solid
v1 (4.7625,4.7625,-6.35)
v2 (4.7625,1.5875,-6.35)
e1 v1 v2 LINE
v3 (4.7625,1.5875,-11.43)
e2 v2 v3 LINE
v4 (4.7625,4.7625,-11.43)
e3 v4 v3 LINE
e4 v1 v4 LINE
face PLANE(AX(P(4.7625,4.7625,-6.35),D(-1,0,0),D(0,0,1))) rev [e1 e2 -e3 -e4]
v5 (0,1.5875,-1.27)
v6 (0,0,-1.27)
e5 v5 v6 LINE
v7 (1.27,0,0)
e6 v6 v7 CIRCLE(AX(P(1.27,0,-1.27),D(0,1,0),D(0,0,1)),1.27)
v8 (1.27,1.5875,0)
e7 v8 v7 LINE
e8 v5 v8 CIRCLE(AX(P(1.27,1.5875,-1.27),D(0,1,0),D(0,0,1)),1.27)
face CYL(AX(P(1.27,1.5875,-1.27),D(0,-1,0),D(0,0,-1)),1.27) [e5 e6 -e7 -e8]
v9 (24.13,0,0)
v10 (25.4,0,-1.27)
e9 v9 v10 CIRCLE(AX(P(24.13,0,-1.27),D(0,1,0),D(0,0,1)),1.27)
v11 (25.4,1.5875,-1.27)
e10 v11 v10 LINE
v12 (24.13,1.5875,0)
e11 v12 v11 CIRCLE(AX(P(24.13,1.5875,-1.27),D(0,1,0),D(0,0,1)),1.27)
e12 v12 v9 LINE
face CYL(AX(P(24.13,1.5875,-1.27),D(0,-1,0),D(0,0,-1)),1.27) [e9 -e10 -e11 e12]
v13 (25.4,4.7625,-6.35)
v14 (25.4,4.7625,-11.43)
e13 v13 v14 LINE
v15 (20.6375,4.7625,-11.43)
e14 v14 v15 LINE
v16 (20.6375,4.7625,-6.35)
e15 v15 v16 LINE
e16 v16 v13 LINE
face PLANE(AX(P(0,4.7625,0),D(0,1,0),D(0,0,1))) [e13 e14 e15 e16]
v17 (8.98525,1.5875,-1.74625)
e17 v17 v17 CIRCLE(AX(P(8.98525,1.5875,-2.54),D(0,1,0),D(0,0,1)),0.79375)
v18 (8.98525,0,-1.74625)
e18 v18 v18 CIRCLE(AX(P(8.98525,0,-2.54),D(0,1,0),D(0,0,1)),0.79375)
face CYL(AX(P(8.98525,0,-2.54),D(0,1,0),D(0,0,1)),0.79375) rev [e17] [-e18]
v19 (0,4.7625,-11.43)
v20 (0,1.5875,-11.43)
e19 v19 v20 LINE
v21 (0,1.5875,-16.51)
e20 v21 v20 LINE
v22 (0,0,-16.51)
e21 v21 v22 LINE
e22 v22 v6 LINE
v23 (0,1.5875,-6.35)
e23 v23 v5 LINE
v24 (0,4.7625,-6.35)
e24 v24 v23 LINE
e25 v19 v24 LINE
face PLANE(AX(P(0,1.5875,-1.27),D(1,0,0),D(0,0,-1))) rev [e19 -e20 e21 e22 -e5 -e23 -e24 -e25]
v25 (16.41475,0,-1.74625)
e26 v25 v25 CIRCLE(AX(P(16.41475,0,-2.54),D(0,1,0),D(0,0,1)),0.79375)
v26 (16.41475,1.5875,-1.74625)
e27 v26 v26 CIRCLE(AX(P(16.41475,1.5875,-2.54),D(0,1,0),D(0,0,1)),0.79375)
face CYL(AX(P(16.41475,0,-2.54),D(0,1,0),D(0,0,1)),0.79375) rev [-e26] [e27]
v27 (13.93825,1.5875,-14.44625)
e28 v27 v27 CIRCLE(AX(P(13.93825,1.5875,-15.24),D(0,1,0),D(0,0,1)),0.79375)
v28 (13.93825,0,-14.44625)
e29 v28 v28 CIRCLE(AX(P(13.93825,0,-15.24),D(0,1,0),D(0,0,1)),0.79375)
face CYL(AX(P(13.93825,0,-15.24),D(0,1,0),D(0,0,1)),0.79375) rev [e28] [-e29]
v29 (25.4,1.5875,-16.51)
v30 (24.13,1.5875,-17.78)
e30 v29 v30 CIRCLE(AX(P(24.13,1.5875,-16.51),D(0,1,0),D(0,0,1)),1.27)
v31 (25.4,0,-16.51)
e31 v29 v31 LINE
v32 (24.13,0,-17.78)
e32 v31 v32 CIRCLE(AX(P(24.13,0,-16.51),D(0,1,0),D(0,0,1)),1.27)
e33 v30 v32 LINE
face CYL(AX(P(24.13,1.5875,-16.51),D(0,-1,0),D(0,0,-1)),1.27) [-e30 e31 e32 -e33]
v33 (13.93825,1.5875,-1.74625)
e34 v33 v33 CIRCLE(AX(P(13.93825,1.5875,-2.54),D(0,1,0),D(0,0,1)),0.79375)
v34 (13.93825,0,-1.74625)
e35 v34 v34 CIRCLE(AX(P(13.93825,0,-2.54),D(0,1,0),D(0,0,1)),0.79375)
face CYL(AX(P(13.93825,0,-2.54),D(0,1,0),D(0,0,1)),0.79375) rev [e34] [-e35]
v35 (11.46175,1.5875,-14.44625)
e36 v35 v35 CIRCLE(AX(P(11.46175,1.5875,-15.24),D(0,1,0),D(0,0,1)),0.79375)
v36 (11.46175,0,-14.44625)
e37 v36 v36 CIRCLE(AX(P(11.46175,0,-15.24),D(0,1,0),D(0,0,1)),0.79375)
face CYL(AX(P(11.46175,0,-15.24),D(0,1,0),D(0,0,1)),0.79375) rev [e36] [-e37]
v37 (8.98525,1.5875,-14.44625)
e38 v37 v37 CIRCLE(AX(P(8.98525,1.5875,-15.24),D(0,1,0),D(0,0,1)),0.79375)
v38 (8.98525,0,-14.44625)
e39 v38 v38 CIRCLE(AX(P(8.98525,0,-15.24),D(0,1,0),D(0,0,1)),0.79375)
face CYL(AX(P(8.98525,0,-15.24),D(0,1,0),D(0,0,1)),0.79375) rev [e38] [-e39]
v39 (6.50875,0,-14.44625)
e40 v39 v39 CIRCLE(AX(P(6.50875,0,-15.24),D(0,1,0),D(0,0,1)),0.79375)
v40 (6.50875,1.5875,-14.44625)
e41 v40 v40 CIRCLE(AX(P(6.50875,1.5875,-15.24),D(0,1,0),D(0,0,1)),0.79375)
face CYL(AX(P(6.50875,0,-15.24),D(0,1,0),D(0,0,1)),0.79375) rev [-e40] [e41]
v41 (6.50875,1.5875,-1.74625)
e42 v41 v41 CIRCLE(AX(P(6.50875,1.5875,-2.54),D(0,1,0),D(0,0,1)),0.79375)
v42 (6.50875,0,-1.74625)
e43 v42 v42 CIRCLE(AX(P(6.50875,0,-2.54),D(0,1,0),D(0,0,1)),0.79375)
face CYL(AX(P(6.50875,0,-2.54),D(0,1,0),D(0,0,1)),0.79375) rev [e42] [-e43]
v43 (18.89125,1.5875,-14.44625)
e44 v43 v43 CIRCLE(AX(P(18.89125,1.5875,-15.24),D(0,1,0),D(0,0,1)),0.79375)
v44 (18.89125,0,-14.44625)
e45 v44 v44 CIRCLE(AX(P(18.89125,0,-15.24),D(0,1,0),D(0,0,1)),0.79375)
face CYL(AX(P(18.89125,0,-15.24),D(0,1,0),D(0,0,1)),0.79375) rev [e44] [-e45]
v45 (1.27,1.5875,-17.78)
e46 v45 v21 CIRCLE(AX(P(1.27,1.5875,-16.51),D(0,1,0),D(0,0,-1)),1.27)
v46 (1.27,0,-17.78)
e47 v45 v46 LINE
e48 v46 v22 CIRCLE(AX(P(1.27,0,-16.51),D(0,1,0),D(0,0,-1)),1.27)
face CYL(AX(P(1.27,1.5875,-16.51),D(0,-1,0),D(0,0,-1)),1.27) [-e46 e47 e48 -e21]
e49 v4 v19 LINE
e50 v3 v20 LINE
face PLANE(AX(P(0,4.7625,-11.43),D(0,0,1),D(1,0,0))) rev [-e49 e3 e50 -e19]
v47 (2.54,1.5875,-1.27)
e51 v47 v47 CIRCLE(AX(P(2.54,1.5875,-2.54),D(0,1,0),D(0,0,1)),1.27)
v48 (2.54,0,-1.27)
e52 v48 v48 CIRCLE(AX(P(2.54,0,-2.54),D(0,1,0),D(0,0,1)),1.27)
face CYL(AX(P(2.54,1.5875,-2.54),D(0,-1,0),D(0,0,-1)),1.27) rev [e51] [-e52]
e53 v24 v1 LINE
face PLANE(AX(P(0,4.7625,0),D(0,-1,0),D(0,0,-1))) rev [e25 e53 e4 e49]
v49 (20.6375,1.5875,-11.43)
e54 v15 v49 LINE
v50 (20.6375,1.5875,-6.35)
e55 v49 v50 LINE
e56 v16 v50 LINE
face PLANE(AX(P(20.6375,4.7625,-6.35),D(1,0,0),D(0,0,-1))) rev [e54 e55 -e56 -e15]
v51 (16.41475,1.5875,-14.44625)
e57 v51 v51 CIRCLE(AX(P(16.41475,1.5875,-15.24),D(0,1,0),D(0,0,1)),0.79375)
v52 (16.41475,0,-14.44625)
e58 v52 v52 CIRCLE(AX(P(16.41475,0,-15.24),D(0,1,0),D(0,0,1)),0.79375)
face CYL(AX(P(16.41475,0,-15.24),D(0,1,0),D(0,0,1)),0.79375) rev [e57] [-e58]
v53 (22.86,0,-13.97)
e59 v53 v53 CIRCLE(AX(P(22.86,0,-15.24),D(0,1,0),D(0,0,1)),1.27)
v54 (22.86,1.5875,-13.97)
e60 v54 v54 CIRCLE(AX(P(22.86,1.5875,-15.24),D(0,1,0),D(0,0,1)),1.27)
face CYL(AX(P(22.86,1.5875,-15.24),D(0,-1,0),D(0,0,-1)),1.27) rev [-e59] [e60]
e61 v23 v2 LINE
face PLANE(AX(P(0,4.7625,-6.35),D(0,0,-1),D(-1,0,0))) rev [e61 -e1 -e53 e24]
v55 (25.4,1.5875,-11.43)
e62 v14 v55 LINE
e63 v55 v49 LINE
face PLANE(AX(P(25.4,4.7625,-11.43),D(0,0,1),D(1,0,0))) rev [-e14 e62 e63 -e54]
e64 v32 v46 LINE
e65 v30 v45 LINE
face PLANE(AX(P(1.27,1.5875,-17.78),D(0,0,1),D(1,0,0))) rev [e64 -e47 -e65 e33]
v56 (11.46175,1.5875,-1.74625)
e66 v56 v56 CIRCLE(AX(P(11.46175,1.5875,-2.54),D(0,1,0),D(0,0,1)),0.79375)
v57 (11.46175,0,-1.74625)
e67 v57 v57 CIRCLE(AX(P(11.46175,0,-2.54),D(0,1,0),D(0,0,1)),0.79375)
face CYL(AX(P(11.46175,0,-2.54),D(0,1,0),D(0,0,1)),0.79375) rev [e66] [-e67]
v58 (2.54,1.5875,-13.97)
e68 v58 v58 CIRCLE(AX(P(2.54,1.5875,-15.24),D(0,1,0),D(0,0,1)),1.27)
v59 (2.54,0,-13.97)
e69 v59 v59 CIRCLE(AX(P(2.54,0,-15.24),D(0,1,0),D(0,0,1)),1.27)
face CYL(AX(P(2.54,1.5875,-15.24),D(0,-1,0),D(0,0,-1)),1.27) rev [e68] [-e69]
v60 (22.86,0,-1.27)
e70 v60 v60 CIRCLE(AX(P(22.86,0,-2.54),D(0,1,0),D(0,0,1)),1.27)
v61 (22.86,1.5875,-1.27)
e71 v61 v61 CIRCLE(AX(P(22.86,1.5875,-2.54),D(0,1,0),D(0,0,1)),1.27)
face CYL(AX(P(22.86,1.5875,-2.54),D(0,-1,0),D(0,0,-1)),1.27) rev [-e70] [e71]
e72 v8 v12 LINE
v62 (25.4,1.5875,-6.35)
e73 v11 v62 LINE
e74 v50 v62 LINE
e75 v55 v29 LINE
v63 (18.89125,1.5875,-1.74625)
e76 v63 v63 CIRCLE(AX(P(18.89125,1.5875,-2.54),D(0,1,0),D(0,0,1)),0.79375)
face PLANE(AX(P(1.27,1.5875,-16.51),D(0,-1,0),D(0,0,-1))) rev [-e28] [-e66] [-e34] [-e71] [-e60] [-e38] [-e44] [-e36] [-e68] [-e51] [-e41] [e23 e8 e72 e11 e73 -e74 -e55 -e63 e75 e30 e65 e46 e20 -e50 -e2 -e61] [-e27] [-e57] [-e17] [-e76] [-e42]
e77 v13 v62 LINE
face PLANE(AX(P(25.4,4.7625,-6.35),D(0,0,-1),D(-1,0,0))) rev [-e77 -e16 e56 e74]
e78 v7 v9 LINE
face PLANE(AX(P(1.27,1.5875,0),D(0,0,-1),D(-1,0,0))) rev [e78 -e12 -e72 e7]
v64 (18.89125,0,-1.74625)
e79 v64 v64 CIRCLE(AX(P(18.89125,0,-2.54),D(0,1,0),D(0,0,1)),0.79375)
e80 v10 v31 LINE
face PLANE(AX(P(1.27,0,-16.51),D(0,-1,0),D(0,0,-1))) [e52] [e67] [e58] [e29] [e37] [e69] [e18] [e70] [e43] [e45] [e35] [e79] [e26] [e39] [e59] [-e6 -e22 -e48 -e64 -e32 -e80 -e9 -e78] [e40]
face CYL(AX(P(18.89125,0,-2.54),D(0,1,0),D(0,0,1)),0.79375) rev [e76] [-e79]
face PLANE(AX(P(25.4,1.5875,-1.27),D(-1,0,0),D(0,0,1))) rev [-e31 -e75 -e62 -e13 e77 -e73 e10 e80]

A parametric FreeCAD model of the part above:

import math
import FreeCAD as App
import Part
import Sketcher
Q = App.Units.Quantity

doc = App.newDocument("Part")
body = doc.addObject("PartDesign::Body", "Body")

# Sketch on XZ plane
sketch1 = body.newObject("Sketcher::SketchObject", "Sketch")
sketch1.AttachmentSupport = (doc.getObject("XZ_Plane"), [""])
sketch1.MapMode = "FlatFace"
sketch1.addGeometry(Part.LineSegment(App.Vector(1.3, 0, 0), App.Vector(24.1, 0, 0)), False)
sketch1.addGeometry(Part.ArcOfCircle(Part.Circle(App.Vector(24.1, -1.3, 0), App.Vector(0, 0, 1), 1.3), math.radians(0), math.radians(90)), False)
sketch1.addGeometry(Part.LineSegment(App.Vector(25.4, -1.3, 0), App.Vector(25.4, -16.5, 0)), False)
sketch1.addGeometry(Part.ArcOfCircle(Part.Circle(App.Vector(24.1, -16.5, 0), App.Vector(0, 0, 1), 1.3), math.radians(-90), math.radians(0)), False)
sketch1.addGeometry(Part.LineSegment(App.Vector(24.1, -17.8, 0), App.Vector(1.3, -17.8, 0)), False)
sketch1.addGeometry(Part.ArcOfCircle(Part.Circle(App.Vector(1.3, -16.5, 0), App.Vector(0, 0, 1), 1.3), math.radians(180), math.radians(270)), False)
sketch1.addGeometry(Part.LineSegment(App.Vector(0, -16.5, 0), App.Vector(0, -1.3, 0)), False)
sketch1.addGeometry(Part.ArcOfCircle(Part.Circle(App.Vector(1.3, -1.3, 0), App.Vector(0, 0, 1), 1.3), math.radians(90), math.radians(180)), False)
sketch1.addGeometry(Part.Circle(App.Vector(2.5, -2.5, 0), App.Vector(0, 0, 1), 1.3), False)
sketch1.addGeometry(Part.Circle(App.Vector(22.9, -2.5, 0), App.Vector(0, 0, 1), 1.3), False)
sketch1.addGeometry(Part.Circle(App.Vector(2.5, -15.2, 0), App.Vector(0, 0, 1), 1.3), False)
sketch1.addGeometry(Part.Circle(App.Vector(22.9, -15.2, 0), App.Vector(0, 0, 1), 1.3), False)
sketch1.addConstraint(Sketcher.Constraint("Tangent", 0, 2, 1, 2))
sketch1.addConstraint(Sketcher.Constraint("Tangent", 1, 1, 2, 1))
sketch1.addConstraint(Sketcher.Constraint("Tangent", 2, 2, 3, 2))
sketch1.addConstraint(Sketcher.Constraint("Tangent", 3, 1, 4, 1))
sketch1.addConstraint(Sketcher.Constraint("Tangent", 4, 2, 5, 2))
sketch1.addConstraint(Sketcher.Constraint("Tangent", 5, 1, 6, 1))
sketch1.addConstraint(Sketcher.Constraint("Tangent", 6, 2, 7, 2))
sketch1.addConstraint(Sketcher.Constraint("Tangent", 7, 1, 0, 1))
sketch1.addConstraint(Sketcher.Constraint("Horizontal", 0))
sketch1.addConstraint(Sketcher.Constraint("Vertical", 2))
sketch1.addConstraint(Sketcher.Constraint("Horizontal", 4))
sketch1.addConstraint(Sketcher.Constraint("Vertical", 6))
sketch1.addConstraint(Sketcher.Constraint("Equal", 1, 3))
sketch1.addConstraint(Sketcher.Constraint("Equal", 3, 5))
sketch1.addConstraint(Sketcher.Constraint("Equal", 5, 7))
sketch1.addConstraint(Sketcher.Constraint("Equal", 7, 8))
sketch1.addConstraint(Sketcher.Constraint("Equal", 8, 9))
sketch1.addConstraint(Sketcher.Constraint("Equal", 9, 10))
sketch1.addConstraint(Sketcher.Constraint("Equal", 10, 11))
sketch1.addConstraint(Sketcher.Constraint("PointOnObject", 0, 2, -1))
sketch1.addConstraint(Sketcher.Constraint("PointOnObject", 5, 1, -2))
sketch1.addConstraint(Sketcher.Constraint("Horizontal", 8, 3, 9, 3))
sketch1.addConstraint(Sketcher.Constraint("Horizontal", 10, 3, 11, 3))
sketch1.addConstraint(Sketcher.Constraint("Vertical", 8, 3, 10, 3))
sketch1.addConstraint(Sketcher.Constraint("Vertical", 9, 3, 11, 3))
sketch1.addConstraint(Sketcher.Constraint("Diameter", 8, Q("0.1 in")))
sketch1.addConstraint(Sketcher.Constraint("DistanceX", 0, 1, 0, 2, Q("0.9 in")))
sketch1.addConstraint(Sketcher.Constraint("DistanceY", 2, 2, 2, 1, Q("0.6 in")))
sketch1.addConstraint(Sketcher.Constraint("DistanceX", -1, 1, 8, 3, Q("0.1 in")))
sketch1.addConstraint(Sketcher.Constraint("DistanceY", 8, 3, -1, 1, Q("0.1 in")))
sketch1.addConstraint(Sketcher.Constraint("DistanceX", -1, 1, 9, 3, Q("0.9 in")))
sketch1.addConstraint(Sketcher.Constraint("DistanceY", 10, 3, -1, 1, Q("0.6 in")))
pad1 = body.newObject("PartDesign::Pad", "Pad")
pad1.Profile = sketch1
pad1.Length = Q("0.0625 in")
pad1.Reversed = True

# Sketch on XZ plane
sketch2 = body.newObject("Sketcher::SketchObject", "Sketch001")
sketch2.AttachmentSupport = (doc.getObject("XZ_Plane"), [""])
sketch2.MapMode = "FlatFace"
sketch2.AttachmentOffset = App.Placement(App.Vector(0, 0, -0.0625 * 25.4), App.Rotation())
sketch2.addGeometry(Part.Circle(App.Vector(6.5, -15.2, 0), App.Vector(0, 0, 1), 0.8), False)
sketch2.addGeometry(Part.Circle(App.Vector(9, -15.2, 0), App.Vector(0, 0, 1), 0.8), False)
sketch2.addGeometry(Part.Circle(App.Vector(11.5, -15.2, 0), App.Vector(0, 0, 1), 0.8), False)
sketch2.addGeometry(Part.Circle(App.Vector(13.9, -15.2, 0), App.Vector(0, 0, 1), 0.8), False)
sketch2.addGeometry(Part.Circle(App.Vector(16.4, -15.2, 0), App.Vector(0, 0, 1), 0.8), False)
sketch2.addGeometry(Part.Circle(App.Vector(18.9, -15.2, 0), App.Vector(0, 0, 1), 0.8), False)
sketch2.addGeometry(Part.Circle(App.Vector(6.5, -2.5, 0), App.Vector(0, 0, 1), 0.8), False)
sketch2.addGeometry(Part.Circle(App.Vector(9, -2.5, 0), App.Vector(0, 0, 1), 0.8), False)
sketch2.addGeometry(Part.Circle(App.Vector(11.5, -2.5, 0), App.Vector(0, 0, 1), 0.8), False)
sketch2.addGeometry(Part.Circle(App.Vector(13.9, -2.5, 0), App.Vector(0, 0, 1), 0.8), False)
sketch2.addGeometry(Part.Circle(App.Vector(16.4, -2.5, 0), App.Vector(0, 0, 1), 0.8), False)
sketch2.addGeometry(Part.Circle(App.Vector(18.9, -2.5, 0), App.Vector(0, 0, 1), 0.8), False)
sketch2.addConstraint(Sketcher.Constraint("Equal", 0, 1))
sketch2.addConstraint(Sketcher.Constraint("Equal", 1, 2))
sketch2.addConstraint(Sketcher.Constraint("Equal", 2, 3))
sketch2.addConstraint(Sketcher.Constraint("Equal", 3, 4))
sketch2.addConstraint(Sketcher.Constraint("Equal", 4, 5))
sketch2.addConstraint(Sketcher.Constraint("Equal", 5, 6))
sketch2.addConstraint(Sketcher.Constraint("Equal", 6, 7))
sketch2.addConstraint(Sketcher.Constraint("Equal", 7, 8))
sketch2.addConstraint(Sketcher.Constraint("Equal", 8, 9))
sketch2.addConstraint(Sketcher.Constraint("Equal", 9, 10))
sketch2.addConstraint(Sketcher.Constraint("Equal", 10, 11))
sketch2.addConstraint(Sketcher.Constraint("Horizontal", 0, 3, 1, 3))
sketch2.addConstraint(Sketcher.Constraint("Horizontal", 1, 3, 2, 3))
sketch2.addConstraint(Sketcher.Constraint("Horizontal", 2, 3, 3, 3))
sketch2.addConstraint(Sketcher.Constraint("Horizontal", 3, 3, 4, 3))
sketch2.addConstraint(Sketcher.Constraint("Horizontal", 4, 3, 5, 3))
sketch2.addConstraint(Sketcher.Constraint("Horizontal", 6, 3, 7, 3))
sketch2.addConstraint(Sketcher.Constraint("Horizontal", 7, 3, 8, 3))
sketch2.addConstraint(Sketcher.Constraint("Horizontal", 8, 3, 9, 3))
sketch2.addConstraint(Sketcher.Constraint("Horizontal", 9, 3, 10, 3))
sketch2.addConstraint(Sketcher.Constraint("Horizontal", 10, 3, 11, 3))
sketch2.addConstraint(Sketcher.Constraint("Vertical", 0, 3, 6, 3))
sketch2.addConstraint(Sketcher.Constraint("Vertical", 1, 3, 7, 3))
sketch2.addConstraint(Sketcher.Constraint("Vertical", 2, 3, 8, 3))
sketch2.addConstraint(Sketcher.Constraint("Vertical", 3, 3, 9, 3))
sketch2.addConstraint(Sketcher.Constraint("Vertical", 4, 3, 10, 3))
sketch2.addConstraint(Sketcher.Constraint("Vertical", 5, 3, 11, 3))
sketch2.addConstraint(Sketcher.Constraint("Diameter", 0, Q("0.0625 in")))
sketch2.addConstraint(Sketcher.Constraint("DistanceY", 0, 3, -1, 1, Q("0.6 in")))
sketch2.addConstraint(Sketcher.Constraint("DistanceY", 6, 3, -1, 1, Q("0.1 in")))
sketch2.addConstraint(Sketcher.Constraint("DistanceX", 0, 3, 4, 3, Q("0.39 in")))
sketch2.addConstraint(Sketcher.Constraint("DistanceX", 1, 3, 5, 3, Q("0.39 in")))
sketch2.addConstraint(Sketcher.Constraint("DistanceX", 0, 3, 2, 3, Q("0.195 in")))
sketch2.addConstraint(Sketcher.Constraint("DistanceX", 1, 3, 3, 3, Q("0.195 in")))
sketch2.addConstraint(Sketcher.Constraint("DistanceX", 0, 3, 1, 3, Q("0.0975 in")))
sketch2.addConstraint(Sketcher.Constraint("DistanceX", -1, 1, 0, 3, Q("6.50875 mm")))
pocket1 = body.newObject("PartDesign::Pocket", "Pocket")
pocket1.Profile = sketch2
pocket1.Length = Q("0.0625 in")
pocket1.Reversed = True

# Sketch on XZ plane
sketch3 = body.newObject("Sketcher::SketchObject", "Sketch002")
sketch3.AttachmentSupport = (doc.getObject("XZ_Plane"), [""])
sketch3.MapMode = "FlatFace"
sketch3.AttachmentOffset = App.Placement(App.Vector(0, 0, -0.0625 * 25.4), App.Rotation())
sketch3.addGeometry(Part.LineSegment(App.Vector(20.6, -11.4, 0), App.Vector(20.6, -6.3, 0)), False)
sketch3.addGeometry(Part.LineSegment(App.Vector(20.6, -6.3, 0), App.Vector(25.4, -6.3, 0)), False)
sketch3.addGeometry(Part.LineSegment(App.Vector(25.4, -6.3, 0), App.Vector(25.4, -11.4, 0)), False)
sketch3.addGeometry(Part.LineSegment(App.Vector(25.4, -11.4, 0), App.Vector(20.6, -11.4, 0)), False)
sketch3.addGeometry(Part.LineSegment(App.Vector(0, -11.4, 0), App.Vector(0, -6.3, 0)), False)
sketch3.addGeometry(Part.LineSegment(App.Vector(0, -6.3, 0), App.Vector(4.8, -6.3, 0)), False)
sketch3.addGeometry(Part.LineSegment(App.Vector(4.8, -6.3, 0), App.Vector(4.8, -11.4, 0)), False)
sketch3.addGeometry(Part.LineSegment(App.Vector(4.8, -11.4, 0), App.Vector(0, -11.4, 0)), False)
sketch3.addConstraint(Sketcher.Constraint("Coincident", 0, 2, 1, 1))
sketch3.addConstraint(Sketcher.Constraint("Coincident", 1, 2, 2, 1))
sketch3.addConstraint(Sketcher.Constraint("Coincident", 2, 2, 3, 1))
sketch3.addConstraint(Sketcher.Constraint("Coincident", 3, 2, 0, 1))
sketch3.addConstraint(Sketcher.Constraint("Coincident", 4, 2, 5, 1))
sketch3.addConstraint(Sketcher.Constraint("Coincident", 5, 2, 6, 1))
sketch3.addConstraint(Sketcher.Constraint("Coincident", 6, 2, 7, 1))
sketch3.addConstraint(Sketcher.Constraint("Coincident", 7, 2, 4, 1))
sketch3.addConstraint(Sketcher.Constraint("Vertical", 0))
sketch3.addConstraint(Sketcher.Constraint("Horizontal", 1))
sketch3.addConstraint(Sketcher.Constraint("Vertical", 2))
sketch3.addConstraint(Sketcher.Constraint("Horizontal", 3))
sketch3.addConstraint(Sketcher.Constraint("Vertical", 4))
sketch3.addConstraint(Sketcher.Constraint("Horizontal", 5))
sketch3.addConstraint(Sketcher.Constraint("Vertical", 6))
sketch3.addConstraint(Sketcher.Constraint("Horizontal", 7))
sketch3.addConstraint(Sketcher.Constraint("PointOnObject", 4, 2, -2))
sketch3.addConstraint(Sketcher.Constraint("Horizontal", 1, 2, 4, 2))
sketch3.addConstraint(Sketcher.Constraint("Horizontal", 3, 2, 6, 2))
sketch3.addConstraint(Sketcher.Constraint("Equal", 3, 5))
sketch3.addConstraint(Sketcher.Constraint("DistanceY", 0, 1, 0, 2, Q("0.2 in")))
sketch3.addConstraint(Sketcher.Constraint("DistanceX", -1, 1, 1, 2, Q("1 in")))
sketch3.addConstraint(Sketcher.Constraint("DistanceX", 1, 1, 1, 2, Q("0.1875 in")))
sketch3.addConstraint(Sketcher.Constraint("DistanceY", 0, 2, -1, 1, Q("0.25 in")))
pad2 = body.newObject("PartDesign::Pad", "Pad001")
pad2.Profile = sketch3
pad2.Length = Q("0.125 in")
pad2.Reversed = True

doc.recompute()
